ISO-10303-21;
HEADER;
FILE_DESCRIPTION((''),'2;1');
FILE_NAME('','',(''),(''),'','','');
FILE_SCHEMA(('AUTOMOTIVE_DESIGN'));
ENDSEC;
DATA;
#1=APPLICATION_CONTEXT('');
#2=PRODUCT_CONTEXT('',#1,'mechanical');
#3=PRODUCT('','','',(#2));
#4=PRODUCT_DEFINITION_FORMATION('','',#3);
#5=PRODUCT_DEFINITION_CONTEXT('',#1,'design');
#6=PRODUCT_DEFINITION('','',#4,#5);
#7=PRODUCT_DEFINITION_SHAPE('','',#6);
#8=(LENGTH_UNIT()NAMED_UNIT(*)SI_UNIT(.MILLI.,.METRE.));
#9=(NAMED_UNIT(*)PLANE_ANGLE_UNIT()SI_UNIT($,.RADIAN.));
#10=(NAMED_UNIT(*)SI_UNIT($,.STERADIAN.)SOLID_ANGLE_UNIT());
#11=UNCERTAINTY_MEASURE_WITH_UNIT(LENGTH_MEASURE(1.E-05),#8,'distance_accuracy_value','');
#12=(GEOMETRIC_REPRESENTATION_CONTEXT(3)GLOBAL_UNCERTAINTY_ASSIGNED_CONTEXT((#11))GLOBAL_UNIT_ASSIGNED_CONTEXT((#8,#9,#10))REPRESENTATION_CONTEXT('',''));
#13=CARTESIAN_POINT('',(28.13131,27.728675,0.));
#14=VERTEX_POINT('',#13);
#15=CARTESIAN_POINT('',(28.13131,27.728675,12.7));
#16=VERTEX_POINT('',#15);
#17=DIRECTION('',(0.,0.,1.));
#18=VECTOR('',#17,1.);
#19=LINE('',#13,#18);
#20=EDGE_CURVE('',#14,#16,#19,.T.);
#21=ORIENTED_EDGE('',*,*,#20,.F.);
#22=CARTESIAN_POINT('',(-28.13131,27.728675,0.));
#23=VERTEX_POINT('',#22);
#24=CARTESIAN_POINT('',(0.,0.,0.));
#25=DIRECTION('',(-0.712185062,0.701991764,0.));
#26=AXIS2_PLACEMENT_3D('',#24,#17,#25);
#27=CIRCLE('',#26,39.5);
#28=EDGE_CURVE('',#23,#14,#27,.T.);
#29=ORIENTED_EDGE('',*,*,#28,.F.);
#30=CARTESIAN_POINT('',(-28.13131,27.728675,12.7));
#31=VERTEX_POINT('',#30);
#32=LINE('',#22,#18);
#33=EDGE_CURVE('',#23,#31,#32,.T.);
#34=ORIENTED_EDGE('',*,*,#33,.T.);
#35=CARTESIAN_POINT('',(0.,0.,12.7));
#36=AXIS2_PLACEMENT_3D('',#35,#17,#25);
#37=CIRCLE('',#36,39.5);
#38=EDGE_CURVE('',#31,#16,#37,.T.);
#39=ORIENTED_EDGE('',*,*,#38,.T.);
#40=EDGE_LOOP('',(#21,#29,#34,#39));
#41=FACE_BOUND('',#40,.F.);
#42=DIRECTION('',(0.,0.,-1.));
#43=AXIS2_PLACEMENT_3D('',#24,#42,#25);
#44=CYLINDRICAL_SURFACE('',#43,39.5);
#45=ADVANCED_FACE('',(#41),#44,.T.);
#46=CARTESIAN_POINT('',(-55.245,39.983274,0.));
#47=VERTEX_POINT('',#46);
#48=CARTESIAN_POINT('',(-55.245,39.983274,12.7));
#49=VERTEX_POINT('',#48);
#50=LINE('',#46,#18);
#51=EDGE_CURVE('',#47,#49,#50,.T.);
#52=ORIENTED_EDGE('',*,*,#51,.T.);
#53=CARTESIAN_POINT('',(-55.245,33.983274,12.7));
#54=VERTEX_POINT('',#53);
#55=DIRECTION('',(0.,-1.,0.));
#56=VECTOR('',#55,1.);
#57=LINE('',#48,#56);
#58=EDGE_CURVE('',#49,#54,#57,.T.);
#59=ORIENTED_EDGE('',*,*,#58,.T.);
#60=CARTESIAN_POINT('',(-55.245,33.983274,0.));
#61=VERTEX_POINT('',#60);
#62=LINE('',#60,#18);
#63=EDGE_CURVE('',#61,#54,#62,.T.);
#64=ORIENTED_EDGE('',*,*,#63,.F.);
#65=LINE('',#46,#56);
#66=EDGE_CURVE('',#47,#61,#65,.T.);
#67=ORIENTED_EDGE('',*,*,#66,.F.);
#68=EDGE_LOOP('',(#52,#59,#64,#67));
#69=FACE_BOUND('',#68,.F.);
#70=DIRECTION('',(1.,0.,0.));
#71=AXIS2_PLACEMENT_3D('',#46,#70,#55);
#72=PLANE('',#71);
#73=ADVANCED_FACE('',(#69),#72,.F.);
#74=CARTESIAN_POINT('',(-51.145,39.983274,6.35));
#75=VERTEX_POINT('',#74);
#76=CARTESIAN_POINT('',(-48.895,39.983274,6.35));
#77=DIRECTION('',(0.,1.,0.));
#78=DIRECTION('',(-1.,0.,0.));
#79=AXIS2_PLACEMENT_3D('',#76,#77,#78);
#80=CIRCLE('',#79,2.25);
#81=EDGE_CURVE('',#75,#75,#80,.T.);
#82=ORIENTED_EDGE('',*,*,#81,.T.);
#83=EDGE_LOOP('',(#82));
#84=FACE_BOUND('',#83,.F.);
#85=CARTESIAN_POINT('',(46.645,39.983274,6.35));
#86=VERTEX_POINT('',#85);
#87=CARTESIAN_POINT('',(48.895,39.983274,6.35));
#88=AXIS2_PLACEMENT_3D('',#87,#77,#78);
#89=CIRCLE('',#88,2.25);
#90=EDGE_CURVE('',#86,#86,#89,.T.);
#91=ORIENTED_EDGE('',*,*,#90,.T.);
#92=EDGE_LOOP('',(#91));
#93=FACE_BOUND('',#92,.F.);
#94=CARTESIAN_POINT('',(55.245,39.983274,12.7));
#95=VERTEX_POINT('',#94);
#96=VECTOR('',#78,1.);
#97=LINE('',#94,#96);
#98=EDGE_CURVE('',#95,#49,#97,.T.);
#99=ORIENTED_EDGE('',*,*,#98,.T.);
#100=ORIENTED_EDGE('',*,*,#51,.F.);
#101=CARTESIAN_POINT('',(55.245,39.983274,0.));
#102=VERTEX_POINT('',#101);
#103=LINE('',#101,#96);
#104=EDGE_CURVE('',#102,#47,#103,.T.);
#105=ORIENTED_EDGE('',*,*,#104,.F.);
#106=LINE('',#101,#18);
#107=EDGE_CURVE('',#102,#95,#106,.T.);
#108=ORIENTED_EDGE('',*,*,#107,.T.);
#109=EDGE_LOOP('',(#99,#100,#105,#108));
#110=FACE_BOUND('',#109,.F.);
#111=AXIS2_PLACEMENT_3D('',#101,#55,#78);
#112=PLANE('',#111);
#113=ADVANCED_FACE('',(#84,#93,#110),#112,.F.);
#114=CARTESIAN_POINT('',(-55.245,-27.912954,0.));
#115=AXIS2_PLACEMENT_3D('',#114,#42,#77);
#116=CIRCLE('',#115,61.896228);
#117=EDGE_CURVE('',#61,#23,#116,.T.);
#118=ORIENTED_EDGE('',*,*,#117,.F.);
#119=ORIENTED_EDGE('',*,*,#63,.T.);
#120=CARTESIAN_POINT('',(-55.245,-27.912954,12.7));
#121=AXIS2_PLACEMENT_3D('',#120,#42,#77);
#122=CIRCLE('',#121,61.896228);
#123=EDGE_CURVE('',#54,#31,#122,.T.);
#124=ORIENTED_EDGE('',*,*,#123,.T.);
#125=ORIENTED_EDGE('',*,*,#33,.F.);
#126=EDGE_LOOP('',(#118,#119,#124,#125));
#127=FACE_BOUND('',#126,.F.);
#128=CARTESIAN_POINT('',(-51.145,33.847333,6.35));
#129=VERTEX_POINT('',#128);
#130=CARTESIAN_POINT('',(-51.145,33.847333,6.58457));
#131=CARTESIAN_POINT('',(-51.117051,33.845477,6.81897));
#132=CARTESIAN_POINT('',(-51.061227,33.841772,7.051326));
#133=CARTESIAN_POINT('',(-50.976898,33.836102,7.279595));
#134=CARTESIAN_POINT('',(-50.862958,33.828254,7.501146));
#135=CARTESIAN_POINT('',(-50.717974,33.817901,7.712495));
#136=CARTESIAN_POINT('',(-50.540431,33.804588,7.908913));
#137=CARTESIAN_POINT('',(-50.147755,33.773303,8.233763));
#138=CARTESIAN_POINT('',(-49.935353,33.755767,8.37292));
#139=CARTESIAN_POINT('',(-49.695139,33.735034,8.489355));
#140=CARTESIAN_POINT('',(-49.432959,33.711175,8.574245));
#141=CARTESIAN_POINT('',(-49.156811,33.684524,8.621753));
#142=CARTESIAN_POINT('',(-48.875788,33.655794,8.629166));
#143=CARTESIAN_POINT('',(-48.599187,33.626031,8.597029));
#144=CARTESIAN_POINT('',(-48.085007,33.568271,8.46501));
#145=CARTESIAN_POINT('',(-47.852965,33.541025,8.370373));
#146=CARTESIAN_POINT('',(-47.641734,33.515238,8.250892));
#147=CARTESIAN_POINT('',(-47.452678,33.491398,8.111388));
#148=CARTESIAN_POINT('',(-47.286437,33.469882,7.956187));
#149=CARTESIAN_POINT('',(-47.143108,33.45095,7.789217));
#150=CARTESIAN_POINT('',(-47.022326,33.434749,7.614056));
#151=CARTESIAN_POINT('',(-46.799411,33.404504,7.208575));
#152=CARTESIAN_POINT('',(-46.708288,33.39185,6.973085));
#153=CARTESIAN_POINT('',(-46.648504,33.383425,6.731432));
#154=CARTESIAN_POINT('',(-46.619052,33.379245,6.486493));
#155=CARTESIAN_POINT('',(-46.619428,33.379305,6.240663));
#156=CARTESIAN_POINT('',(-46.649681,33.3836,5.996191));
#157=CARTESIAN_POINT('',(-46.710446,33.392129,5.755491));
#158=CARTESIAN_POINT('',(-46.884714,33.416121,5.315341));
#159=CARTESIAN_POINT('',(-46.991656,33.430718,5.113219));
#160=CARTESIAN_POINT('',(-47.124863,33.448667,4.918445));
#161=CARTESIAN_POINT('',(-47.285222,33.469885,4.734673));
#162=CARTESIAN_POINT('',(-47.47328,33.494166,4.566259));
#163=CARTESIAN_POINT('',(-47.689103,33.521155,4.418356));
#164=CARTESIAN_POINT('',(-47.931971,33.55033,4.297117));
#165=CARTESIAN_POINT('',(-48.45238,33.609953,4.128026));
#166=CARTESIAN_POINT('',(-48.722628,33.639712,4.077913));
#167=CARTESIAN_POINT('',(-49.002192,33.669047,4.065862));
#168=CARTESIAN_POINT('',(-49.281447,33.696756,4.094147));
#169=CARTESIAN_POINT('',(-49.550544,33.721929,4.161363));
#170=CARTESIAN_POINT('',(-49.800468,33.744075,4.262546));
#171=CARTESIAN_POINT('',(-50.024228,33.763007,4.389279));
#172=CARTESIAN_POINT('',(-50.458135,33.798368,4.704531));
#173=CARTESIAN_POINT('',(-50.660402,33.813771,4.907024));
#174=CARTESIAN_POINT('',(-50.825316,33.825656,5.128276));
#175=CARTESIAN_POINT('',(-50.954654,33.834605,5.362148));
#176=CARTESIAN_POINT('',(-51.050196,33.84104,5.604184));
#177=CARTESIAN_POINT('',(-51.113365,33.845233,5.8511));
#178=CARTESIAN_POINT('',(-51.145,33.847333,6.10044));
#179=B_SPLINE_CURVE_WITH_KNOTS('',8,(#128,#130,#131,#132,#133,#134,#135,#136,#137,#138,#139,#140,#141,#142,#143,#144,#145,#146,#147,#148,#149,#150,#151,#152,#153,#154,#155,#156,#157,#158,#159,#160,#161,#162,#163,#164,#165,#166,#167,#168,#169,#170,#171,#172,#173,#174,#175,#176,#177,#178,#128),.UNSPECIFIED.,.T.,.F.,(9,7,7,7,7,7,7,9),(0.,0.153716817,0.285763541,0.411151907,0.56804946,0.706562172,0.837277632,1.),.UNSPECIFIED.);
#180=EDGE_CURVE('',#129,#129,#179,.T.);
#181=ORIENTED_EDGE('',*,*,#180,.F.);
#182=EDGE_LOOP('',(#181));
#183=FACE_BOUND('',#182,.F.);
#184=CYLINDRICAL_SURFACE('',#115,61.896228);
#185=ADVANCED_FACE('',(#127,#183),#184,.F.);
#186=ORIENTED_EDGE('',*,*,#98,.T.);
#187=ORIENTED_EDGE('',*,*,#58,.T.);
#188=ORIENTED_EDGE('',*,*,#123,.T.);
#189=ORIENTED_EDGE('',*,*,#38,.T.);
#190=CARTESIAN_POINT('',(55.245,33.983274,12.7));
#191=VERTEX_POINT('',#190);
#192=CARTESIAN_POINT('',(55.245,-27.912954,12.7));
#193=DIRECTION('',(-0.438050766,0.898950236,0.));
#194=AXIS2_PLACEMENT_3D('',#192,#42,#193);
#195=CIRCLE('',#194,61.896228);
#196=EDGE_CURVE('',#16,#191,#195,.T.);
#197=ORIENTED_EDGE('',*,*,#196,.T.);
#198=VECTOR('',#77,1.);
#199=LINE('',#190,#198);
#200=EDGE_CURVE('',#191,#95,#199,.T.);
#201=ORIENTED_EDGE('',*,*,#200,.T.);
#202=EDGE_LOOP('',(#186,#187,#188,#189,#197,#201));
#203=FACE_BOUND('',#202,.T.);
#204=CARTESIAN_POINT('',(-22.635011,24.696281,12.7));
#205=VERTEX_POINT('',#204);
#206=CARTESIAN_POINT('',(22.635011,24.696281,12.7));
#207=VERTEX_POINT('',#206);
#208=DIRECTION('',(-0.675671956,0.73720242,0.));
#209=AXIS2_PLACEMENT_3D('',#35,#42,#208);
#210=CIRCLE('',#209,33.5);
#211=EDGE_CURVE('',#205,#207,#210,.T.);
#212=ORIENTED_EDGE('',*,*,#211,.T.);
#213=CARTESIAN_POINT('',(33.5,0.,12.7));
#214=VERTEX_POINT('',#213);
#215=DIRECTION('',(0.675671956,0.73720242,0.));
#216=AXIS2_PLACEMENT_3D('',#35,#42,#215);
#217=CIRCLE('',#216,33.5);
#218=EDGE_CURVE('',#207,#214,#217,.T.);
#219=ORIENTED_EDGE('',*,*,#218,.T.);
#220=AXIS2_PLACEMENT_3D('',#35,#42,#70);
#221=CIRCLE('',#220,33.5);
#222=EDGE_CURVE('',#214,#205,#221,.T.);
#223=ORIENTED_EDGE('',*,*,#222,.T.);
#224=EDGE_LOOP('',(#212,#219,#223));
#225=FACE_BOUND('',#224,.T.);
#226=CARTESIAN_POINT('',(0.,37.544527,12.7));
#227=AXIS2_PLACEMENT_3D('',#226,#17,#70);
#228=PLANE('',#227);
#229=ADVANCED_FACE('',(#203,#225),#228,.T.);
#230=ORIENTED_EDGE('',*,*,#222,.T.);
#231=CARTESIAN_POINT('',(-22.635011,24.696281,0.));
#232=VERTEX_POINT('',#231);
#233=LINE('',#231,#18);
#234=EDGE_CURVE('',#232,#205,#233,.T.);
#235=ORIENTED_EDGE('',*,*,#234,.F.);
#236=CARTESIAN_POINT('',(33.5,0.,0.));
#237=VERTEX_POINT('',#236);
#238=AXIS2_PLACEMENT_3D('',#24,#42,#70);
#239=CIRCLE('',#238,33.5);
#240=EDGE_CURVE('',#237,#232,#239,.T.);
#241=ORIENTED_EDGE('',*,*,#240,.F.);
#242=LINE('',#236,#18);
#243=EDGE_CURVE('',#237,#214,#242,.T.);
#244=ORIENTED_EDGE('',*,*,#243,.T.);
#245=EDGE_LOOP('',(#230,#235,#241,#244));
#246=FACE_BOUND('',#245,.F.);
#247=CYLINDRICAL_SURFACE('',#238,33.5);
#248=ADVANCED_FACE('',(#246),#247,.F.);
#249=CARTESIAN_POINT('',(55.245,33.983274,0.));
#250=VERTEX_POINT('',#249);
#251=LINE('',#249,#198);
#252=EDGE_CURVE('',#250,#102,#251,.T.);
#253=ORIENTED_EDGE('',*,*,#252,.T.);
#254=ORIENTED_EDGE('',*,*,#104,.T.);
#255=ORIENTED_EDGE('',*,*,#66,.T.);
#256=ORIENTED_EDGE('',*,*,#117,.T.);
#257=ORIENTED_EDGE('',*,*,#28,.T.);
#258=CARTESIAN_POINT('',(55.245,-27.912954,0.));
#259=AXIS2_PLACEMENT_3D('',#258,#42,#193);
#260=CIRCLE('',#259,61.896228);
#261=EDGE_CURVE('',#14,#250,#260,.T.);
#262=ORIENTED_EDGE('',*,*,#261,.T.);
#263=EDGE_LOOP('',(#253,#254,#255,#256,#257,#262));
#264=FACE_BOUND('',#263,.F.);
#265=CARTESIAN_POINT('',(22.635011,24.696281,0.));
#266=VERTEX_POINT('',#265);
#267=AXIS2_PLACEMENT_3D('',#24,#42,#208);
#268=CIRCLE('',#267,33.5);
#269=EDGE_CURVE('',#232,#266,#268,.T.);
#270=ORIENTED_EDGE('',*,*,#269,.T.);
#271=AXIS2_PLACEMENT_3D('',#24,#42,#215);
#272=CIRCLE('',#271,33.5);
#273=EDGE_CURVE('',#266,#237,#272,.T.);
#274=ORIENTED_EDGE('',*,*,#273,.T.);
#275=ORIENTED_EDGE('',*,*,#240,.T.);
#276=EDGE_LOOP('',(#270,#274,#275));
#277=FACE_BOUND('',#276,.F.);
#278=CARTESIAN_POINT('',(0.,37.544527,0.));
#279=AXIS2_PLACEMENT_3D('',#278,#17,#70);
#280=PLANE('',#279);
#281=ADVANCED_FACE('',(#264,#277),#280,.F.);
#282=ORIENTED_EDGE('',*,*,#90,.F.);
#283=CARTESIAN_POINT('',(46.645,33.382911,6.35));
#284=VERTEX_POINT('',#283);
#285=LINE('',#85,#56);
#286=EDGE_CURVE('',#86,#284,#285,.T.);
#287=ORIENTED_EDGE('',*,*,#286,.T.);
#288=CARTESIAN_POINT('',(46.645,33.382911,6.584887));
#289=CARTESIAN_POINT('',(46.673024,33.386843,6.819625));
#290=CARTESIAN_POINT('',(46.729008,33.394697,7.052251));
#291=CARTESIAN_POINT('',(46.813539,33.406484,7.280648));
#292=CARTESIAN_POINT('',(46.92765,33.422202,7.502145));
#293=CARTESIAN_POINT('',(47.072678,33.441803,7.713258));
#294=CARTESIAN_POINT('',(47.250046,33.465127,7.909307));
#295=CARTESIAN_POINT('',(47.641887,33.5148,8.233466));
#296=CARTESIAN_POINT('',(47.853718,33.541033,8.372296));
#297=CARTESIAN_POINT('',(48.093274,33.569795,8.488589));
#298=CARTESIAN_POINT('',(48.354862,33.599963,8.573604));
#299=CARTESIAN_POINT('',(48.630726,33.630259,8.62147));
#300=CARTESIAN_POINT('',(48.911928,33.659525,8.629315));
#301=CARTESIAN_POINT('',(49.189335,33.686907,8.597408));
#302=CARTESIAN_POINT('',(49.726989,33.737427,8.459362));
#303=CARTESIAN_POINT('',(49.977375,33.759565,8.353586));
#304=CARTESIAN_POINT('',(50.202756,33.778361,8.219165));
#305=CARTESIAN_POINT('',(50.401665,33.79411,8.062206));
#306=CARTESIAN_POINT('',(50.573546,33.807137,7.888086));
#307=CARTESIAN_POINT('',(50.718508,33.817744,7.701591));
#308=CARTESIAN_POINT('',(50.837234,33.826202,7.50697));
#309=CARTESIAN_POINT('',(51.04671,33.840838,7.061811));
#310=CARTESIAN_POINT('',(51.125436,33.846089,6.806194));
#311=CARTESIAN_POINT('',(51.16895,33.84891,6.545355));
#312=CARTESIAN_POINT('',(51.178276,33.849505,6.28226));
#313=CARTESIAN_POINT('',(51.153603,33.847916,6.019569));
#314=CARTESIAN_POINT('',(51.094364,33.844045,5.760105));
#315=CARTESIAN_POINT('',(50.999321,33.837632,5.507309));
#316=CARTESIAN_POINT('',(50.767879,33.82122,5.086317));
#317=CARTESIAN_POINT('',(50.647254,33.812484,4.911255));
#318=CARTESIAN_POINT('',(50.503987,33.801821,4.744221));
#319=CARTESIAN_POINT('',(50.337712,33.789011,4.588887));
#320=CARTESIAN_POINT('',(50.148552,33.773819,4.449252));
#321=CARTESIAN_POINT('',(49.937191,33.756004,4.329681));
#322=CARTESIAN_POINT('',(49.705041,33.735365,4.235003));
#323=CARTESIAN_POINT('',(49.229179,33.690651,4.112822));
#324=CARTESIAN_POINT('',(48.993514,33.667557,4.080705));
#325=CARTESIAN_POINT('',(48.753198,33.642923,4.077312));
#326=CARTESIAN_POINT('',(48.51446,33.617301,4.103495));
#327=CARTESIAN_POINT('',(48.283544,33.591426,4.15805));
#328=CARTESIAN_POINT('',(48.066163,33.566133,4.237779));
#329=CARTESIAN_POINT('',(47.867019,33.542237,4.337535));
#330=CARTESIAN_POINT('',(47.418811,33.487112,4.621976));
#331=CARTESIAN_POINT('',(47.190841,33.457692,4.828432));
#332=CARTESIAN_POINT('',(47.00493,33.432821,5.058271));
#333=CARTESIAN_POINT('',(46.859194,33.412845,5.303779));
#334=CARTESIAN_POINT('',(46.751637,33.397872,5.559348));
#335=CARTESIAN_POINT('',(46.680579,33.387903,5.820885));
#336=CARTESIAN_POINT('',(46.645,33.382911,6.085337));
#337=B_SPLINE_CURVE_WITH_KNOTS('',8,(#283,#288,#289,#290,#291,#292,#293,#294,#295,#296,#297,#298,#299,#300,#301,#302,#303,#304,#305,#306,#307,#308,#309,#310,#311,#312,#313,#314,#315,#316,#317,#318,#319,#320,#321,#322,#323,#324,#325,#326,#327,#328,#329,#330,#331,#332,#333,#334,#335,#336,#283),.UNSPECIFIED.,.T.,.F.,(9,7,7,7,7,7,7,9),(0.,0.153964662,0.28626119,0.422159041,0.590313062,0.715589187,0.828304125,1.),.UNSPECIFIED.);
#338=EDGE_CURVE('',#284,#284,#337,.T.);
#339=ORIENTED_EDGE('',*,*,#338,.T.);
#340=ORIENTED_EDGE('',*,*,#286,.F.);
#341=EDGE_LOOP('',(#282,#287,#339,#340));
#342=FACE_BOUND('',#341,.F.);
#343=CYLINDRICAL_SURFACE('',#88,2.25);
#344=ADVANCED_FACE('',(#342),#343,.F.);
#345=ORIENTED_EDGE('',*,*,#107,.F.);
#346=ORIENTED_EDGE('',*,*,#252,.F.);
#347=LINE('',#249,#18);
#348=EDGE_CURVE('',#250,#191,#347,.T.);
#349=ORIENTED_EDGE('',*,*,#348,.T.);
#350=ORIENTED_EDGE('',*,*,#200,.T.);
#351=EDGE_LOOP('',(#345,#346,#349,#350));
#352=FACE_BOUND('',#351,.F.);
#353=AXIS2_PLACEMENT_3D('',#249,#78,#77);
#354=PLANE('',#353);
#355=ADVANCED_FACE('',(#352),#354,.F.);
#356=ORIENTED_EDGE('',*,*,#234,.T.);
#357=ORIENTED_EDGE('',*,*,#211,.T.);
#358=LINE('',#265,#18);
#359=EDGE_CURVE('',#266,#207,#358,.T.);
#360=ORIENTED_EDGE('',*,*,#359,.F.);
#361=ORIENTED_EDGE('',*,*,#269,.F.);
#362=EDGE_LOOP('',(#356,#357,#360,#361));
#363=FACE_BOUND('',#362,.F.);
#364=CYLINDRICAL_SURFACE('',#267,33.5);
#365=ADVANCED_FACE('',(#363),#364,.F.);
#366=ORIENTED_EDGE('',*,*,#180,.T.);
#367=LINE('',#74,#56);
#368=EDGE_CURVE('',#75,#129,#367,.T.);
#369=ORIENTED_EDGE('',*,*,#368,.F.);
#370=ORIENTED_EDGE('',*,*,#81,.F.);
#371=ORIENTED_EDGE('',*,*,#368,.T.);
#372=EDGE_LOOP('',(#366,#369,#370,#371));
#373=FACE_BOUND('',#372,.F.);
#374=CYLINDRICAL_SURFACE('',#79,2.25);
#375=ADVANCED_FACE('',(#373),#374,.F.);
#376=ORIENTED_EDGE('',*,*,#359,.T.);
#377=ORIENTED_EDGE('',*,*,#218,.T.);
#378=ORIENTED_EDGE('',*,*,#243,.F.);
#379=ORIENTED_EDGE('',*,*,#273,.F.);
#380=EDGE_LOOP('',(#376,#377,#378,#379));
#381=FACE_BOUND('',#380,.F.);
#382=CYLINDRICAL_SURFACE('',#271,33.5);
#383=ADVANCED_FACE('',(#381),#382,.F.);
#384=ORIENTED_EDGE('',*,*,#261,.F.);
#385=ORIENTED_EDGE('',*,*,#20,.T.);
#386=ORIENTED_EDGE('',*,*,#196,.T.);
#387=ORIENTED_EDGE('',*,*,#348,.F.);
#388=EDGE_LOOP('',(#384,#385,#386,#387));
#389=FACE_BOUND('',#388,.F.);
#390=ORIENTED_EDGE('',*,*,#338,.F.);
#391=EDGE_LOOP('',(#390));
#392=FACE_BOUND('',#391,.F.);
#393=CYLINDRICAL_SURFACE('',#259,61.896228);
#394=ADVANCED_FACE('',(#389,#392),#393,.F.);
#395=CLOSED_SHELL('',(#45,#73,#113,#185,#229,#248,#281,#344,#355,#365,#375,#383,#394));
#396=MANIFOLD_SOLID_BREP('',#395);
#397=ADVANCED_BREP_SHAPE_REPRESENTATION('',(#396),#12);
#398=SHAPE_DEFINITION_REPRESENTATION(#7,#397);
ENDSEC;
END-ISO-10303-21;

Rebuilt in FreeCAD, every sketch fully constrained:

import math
import FreeCAD as App
import Part
import Sketcher
from FreeCAD import Vector
Q = App.Units.Quantity

doc = App.newDocument("Part")
body = doc.addObject("PartDesign::Body", "Body")

# Sketch on XY plane
sketch1 = body.newObject("Sketcher::SketchObject", "Sketch")
sketch1.AttachmentSupport = (doc.getObject("XY_Plane"), [""])
sketch1.MapMode = "FlatFace"
sketch1.addGeometry(Part.LineSegment(Vector(55, 34, 0), Vector(55, 40, 0)), False)
sketch1.addGeometry(Part.LineSegment(Vector(55, 40, 0), Vector(-55, 40, 0)), False)
sketch1.addGeometry(Part.LineSegment(Vector(-55, 40, 0), Vector(-55, 34, 0)), False)
sketch1.addGeometry(Part.ArcOfCircle(Part.Circle(Vector(-55, -28, 0), Vector(0, 0, 1), 62), math.radians(64), math.radians(90)), False)
sketch1.addGeometry(Part.ArcOfCircle(Part.Circle(Vector(0, 0, 0), Vector(0, 0, 1), 40), math.radians(135), math.radians(405)), False)
sketch1.addGeometry(Part.ArcOfCircle(Part.Circle(Vector(55, -28, 0), Vector(0, 0, 1), 62), math.radians(90), math.radians(116)), False)
sketch1.addGeometry(Part.ArcOfCircle(Part.Circle(Vector(0, 0, 0), Vector(0, 0, 1), 34), math.radians(47), math.radians(133)), False)
sketch1.addGeometry(Part.ArcOfCircle(Part.Circle(Vector(0, 0, 0), Vector(0, 0, 1), 34), math.radians(0), math.radians(47)), False)
sketch1.addGeometry(Part.ArcOfCircle(Part.Circle(Vector(0, 0, 0), Vector(0, 0, 1), 34), math.radians(133), math.radians(360)), False)
sketch1.addConstraint(Sketcher.Constraint("Coincident", 0, 2, 1, 1))
sketch1.addConstraint(Sketcher.Constraint("Coincident", 1, 2, 2, 1))
sketch1.addConstraint(Sketcher.Constraint("Coincident", 2, 2, 3, 2))
sketch1.addConstraint(Sketcher.Constraint("Coincident", 3, 1, 4, 1))
sketch1.addConstraint(Sketcher.Constraint("Coincident", 4, 2, 5, 2))
sketch1.addConstraint(Sketcher.Constraint("Coincident", 5, 1, 0, 1))
sketch1.addConstraint(Sketcher.Constraint("Tangent", 6, 1, 7, 2))
sketch1.addConstraint(Sketcher.Constraint("Tangent", 7, 1, 8, 2))
sketch1.addConstraint(Sketcher.Constraint("Tangent", 8, 1, 6, 2))
sketch1.addConstraint(Sketcher.Constraint("Vertical", 0))
sketch1.addConstraint(Sketcher.Constraint("Horizontal", 1))
sketch1.addConstraint(Sketcher.Constraint("Vertical", 2))
sketch1.addConstraint(Sketcher.Constraint("Coincident", 4, 3, -1, 1))
sketch1.addConstraint(Sketcher.Constraint("Coincident", 6, 3, -1, 1))
sketch1.addConstraint(Sketcher.Constraint("Equal", 3, 5))
sketch1.addConstraint(Sketcher.Constraint("Symmetric", 3, 3, 5, 3, -2))
sketch1.addConstraint(Sketcher.Constraint("PointOnObject", 7, 1, -1))
sketch1.addConstraint(Sketcher.Constraint("Horizontal", 6, 1, 8, 1))
sketch1.addConstraint(Sketcher.Constraint("Vertical", 5, 3, 0, 2))
sketch1.addConstraint(Sketcher.Constraint("Vertical", 3, 3, 1, 2))
sketch1.addConstraint(Sketcher.Constraint("Radius", 4, Q("39.5 mm")))
sketch1.addConstraint(Sketcher.Constraint("Radius", 6, Q("33.5 mm")))
sketch1.addConstraint(Sketcher.Constraint("DistanceY", 0, 1, 0, 2, Q("6 mm")))
sketch1.addConstraint(Sketcher.Constraint("DistanceX", 1, 2, 1, 1, Q("110.49 mm")))
sketch1.addConstraint(Sketcher.Constraint("Radius", 3, Q("61.896228 mm")))
sketch1.addConstraint(Sketcher.Constraint("DistanceY", 3, 1, 2, 2, Q("6.254599 mm")))
sketch1.addConstraint(Sketcher.Constraint("DistanceX", 6, 1, 4, 2, Q("5.496299 mm")))
pad1 = body.newObject("PartDesign::Pad", "Pad")
pad1.Profile = sketch1
pad1.Length = 12.7

# Sketch on XZ plane
sketch2 = body.newObject("Sketcher::SketchObject", "Sketch001")
sketch2.AttachmentSupport = (doc.getObject("XZ_Plane"), [""])
sketch2.MapMode = "FlatFace"
sketch2.AttachmentOffset = App.Placement(Vector(0, 0, -39.983274), App.Rotation())
sketch2.addGeometry(Part.Circle(Vector(48.9, 6.3, 0), Vector(0, 0, 1), 2.2), False)
sketch2.addGeometry(Part.Circle(Vector(-48.9, 6.3, 0), Vector(0, 0, 1), 2.2), False)
sketch2.addConstraint(Sketcher.Constraint("Equal", 0, 1))
sketch2.addConstraint(Sketcher.Constraint("Symmetric", 0, 3, 1, 3, -2))
sketch2.addConstraint(Sketcher.Constraint("Diameter", 0, Q("4.5 mm")))
sketch2.addConstraint(Sketcher.Constraint("DistanceY", -1, 1, 0, 3, Q("6.35 mm")))
sketch2.addConstraint(Sketcher.Constraint("DistanceX", 1, 3, 0, 3, Q("97.79 mm")))
pocket1 = body.newObject("PartDesign::Pocket", "Pocket")
pocket1.Profile = sketch2
pocket1.Type = "ThroughAll"
pocket1.Reversed = True

doc.recompute()
